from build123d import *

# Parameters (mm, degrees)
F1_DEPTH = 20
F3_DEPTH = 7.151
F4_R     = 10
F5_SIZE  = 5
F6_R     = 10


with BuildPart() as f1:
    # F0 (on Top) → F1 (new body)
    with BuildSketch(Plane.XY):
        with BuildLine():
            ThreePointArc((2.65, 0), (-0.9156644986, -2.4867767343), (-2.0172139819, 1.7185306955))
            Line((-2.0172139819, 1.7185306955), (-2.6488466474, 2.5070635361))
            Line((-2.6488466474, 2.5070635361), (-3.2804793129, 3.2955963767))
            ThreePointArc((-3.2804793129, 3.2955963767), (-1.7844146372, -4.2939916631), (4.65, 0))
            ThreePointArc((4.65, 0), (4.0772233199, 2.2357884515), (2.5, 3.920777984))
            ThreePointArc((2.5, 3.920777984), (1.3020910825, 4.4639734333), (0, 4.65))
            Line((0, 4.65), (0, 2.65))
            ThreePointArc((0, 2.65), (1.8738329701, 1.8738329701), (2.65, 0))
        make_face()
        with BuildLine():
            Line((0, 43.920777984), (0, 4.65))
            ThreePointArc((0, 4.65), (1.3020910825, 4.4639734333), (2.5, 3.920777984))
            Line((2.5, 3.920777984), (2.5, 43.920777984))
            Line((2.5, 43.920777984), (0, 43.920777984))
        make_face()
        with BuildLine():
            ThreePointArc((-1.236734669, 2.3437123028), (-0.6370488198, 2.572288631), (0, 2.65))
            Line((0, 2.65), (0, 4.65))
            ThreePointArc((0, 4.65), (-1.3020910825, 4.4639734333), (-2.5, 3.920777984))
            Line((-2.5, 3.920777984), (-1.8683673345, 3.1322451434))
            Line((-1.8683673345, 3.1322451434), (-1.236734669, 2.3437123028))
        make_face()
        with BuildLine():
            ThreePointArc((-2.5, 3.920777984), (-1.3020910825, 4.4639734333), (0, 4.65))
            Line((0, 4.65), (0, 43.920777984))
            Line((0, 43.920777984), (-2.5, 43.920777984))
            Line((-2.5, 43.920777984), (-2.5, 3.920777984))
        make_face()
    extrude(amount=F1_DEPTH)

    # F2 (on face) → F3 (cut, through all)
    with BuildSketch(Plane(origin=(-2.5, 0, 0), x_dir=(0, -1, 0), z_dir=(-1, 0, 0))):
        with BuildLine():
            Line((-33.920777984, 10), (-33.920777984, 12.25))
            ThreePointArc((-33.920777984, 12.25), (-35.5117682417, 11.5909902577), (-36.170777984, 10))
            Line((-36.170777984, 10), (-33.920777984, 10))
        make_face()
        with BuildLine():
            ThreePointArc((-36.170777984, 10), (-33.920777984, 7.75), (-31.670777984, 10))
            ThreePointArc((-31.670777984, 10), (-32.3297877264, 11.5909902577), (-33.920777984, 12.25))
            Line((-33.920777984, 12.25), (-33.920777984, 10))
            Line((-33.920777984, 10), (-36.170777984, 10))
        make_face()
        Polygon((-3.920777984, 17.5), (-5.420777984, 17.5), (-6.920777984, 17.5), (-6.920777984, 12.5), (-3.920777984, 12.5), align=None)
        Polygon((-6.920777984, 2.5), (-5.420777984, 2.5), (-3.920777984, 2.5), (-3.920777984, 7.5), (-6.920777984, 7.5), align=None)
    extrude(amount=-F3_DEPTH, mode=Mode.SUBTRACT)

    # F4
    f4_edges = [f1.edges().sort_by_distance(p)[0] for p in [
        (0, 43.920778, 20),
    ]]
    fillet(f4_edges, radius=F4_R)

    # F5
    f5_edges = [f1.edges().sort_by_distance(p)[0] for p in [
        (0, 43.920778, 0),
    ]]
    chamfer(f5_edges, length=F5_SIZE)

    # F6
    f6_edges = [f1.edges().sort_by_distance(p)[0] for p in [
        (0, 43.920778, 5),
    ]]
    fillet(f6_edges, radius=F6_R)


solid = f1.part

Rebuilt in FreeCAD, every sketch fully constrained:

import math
import FreeCAD as App
import Part
import Sketcher
Q = App.Units.Quantity


def edges_at(feature, points):
    """Names of the edges that pass closest to the given points."""
    edges = feature.Shape.Edges
    near = lambda p: min(range(len(edges)), key=lambda i: edges[i].distToShape(Part.Vertex(*p))[0])
    return sorted({f"Edge{near(p) + 1}" for p in points})


def add_polygon(sketch, points):
    """Adds a closed chain of lines whose ends are joined by coincident constraints."""
    first, n = sketch.GeometryCount, len(points)
    for a, b in zip(points, points[1:] + points[:1]):
        sketch.addGeometry(Part.LineSegment(App.Vector(*a, 0), App.Vector(*b, 0)), False)
    for i in range(n):
        sketch.addConstraint(Sketcher.Constraint("Coincident", first + i, 2, first + (i + 1) % n, 1))

doc = App.newDocument("Part")
body = doc.addObject("PartDesign::Body", "Body")

# Sketch on XY plane
sketch1 = doc.addObject("Sketcher::SketchObject", "Sketch")
body.addObject(sketch1)
sketch1.AttachmentSupport = (doc.XY_Plane, [""])
sketch1.MapMode = "FlatFace"
sketch1.addGeometry([
    Part.ArcOfCircle(Part.Circle(App.Vector(0, 0, 0), App.Vector(0, 0, 1), 2.65), math.radians(139.571235), math.radians(360)),  # 0
    Part.LineSegment(App.Vector(-2.017214, 1.718531, 0), App.Vector(-3.280479, 3.295596, 0)),  # 1
    Part.ArcOfCircle(Part.Circle(App.Vector(0, 0, 0), App.Vector(0, 0, 1), 4.65), math.radians(134.868289), math.radians(360)),  # 2
    Part.ArcOfCircle(Part.Circle(App.Vector(0, 0, 0), App.Vector(0, 0, 1), 4.65), math.radians(0), math.radians(57.477252)),  # 3
    Part.LineSegment(App.Vector(2.5, 3.920778, 0), App.Vector(2.5, 43.920778, 0)),  # 4
    Part.LineSegment(App.Vector(2.5, 43.920778, 0), App.Vector(-2.5, 43.920778, 0)),  # 5
    Part.LineSegment(App.Vector(-2.5, 43.920778, 0), App.Vector(-2.5, 3.920778, 0)),  # 6
    Part.LineSegment(App.Vector(-2.5, 3.920778, 0), App.Vector(-1.236735, 2.343712, 0)),  # 7
    Part.ArcOfCircle(Part.Circle(App.Vector(0, 0, 0), App.Vector(0, 0, 1), 2.65), math.radians(90), math.radians(117.819802)),  # 8
    Part.ArcOfCircle(Part.Circle(App.Vector(0, 0, 0), App.Vector(0, 0, 1), 2.65), math.radians(0), math.radians(90)),  # 9
], False)
sketch1.addConstraint([
    Sketcher.Constraint("Coincident", 0, 1, 1, 1),
    Sketcher.Constraint("Coincident", 1, 2, 2, 1),
    Sketcher.Constraint("Tangent", 2, 2, 3, 1),
    Sketcher.Constraint("Coincident", 3, 2, 4, 1),
    Sketcher.Constraint("Coincident", 4, 2, 5, 1),
    Sketcher.Constraint("Coincident", 5, 2, 6, 1),
    Sketcher.Constraint("Coincident", 6, 2, 7, 1),
    Sketcher.Constraint("Coincident", 7, 2, 8, 2),
    Sketcher.Constraint("Tangent", 8, 1, 9, 2),
    Sketcher.Constraint("Tangent", 9, 1, 0, 2),
    Sketcher.Constraint("Vertical", 4),
    Sketcher.Constraint("Horizontal", 5),
    Sketcher.Constraint("Vertical", 6),
    Sketcher.Constraint("Coincident", 0, 3, -1, 1),
    Sketcher.Constraint("Coincident", 2, 3, -1, 1),
    Sketcher.Constraint("Coincident", 8, 3, -1, 1),
    Sketcher.Constraint("Equal", 2, 3),
    Sketcher.Constraint("Symmetric", 3, 2, 6, 2, -2),
    Sketcher.Constraint("PointOnObject", 2, 2, -1),
    Sketcher.Constraint("PointOnObject", 8, 1, -2),
    Sketcher.Constraint("PointOnObject", 9, 1, -1),
    Sketcher.Constraint("Parallel", 1, 7),
    Sketcher.Constraint("Equal", 1, 7),
    Sketcher.Constraint("DistanceX", 5, 2, 5, 1, Q("5 mm")),
    Sketcher.Constraint("DistanceY", 4, 1, 4, 2, Q("40 mm")),
    Sketcher.Constraint("Radius", 0, Q("2.65 mm")),
    Sketcher.Constraint("Radius", 2, Q("4.65 mm")),
    Sketcher.Constraint("DistanceY", -1, 1, 0, 1, Q("1.718531 mm")),
])
pad1 = doc.addObject("PartDesign::Pad", "Pad")
body.addObject(pad1)
pad1.Profile = sketch1
pad1.Length = 20

# Sketch on YZ plane
sketch2 = doc.addObject("Sketcher::SketchObject", "Sketch001")
body.addObject(sketch2)
sketch2.AttachmentSupport = (doc.YZ_Plane, [""])
sketch2.MapMode = "FlatFace"
sketch2.AttachmentOffset = App.Placement(App.Vector(0, 0, -2.5), App.Rotation())
sketch2.addGeometry(Part.ArcOfCircle(Part.Circle(App.Vector(33.920778, 10, 0), App.Vector(0, 0, 1), 2.25), math.radians(0), math.radians(90)), False)  # 0
sketch2.addGeometry(Part.ArcOfCircle(Part.Circle(App.Vector(33.920778, 10, 0), App.Vector(0, 0, 1), 2.25), math.radians(180), math.radians(360)), False)  # 1
sketch2.addGeometry(Part.ArcOfCircle(Part.Circle(App.Vector(33.920778, 10, 0), App.Vector(0, 0, 1), 2.25), math.radians(90), math.radians(180)), False)  # 2
add_polygon(sketch2, [(3.920778, 17.5), (6.920778, 17.5), (6.920778, 12.5), (3.920778, 12.5)])  # lines 3-6
add_polygon(sketch2, [(6.920778, 2.5), (3.920778, 2.5), (3.920778, 7.5), (6.920778, 7.5)])  # lines 7-10
sketch2.addConstraint([
    Sketcher.Constraint("Tangent", 0, 1, 1, 2),
    Sketcher.Constraint("Tangent", 1, 1, 2, 2),
    Sketcher.Constraint("Tangent", 2, 1, 0, 2),
    Sketcher.Constraint("Horizontal", 3),
    Sketcher.Constraint("Vertical", 4),
    Sketcher.Constraint("Horizontal", 5),
    Sketcher.Constraint("Vertical", 6),
    Sketcher.Constraint("Horizontal", 7),
    Sketcher.Constraint("Vertical", 8),
    Sketcher.Constraint("Horizontal", 9),
    Sketcher.Constraint("Vertical", 10),
    Sketcher.Constraint("Horizontal", 2, 3, 0, 1),
    Sketcher.Constraint("Horizontal", 0, 1, 1, 1),
    Sketcher.Constraint("Vertical", 1, 3, 2, 1),
    Sketcher.Constraint("Vertical", 6, 2, 7, 2),
    Sketcher.Constraint("Vertical", 4, 2, 9, 2),
    Sketcher.Constraint("Equal", 6, 8),
    Sketcher.Constraint("DistanceX", 3, 1, 3, 2, Q("3 mm")),
    Sketcher.Constraint("DistanceY", 4, 2, 4, 1, Q("5 mm")),
    Sketcher.Constraint("Radius", 0, Q("2.25 mm")),
    Sketcher.Constraint("DistanceY", -1, 1, 0, 3, Q("10 mm")),
    Sketcher.Constraint("DistanceX", 3, 2, 2, 1, Q("27 mm")),
    Sketcher.Constraint("DistanceY", 7, 2, 5, 2, Q("10 mm")),
    Sketcher.Constraint("DistanceY", -1, 1, 3, 2, Q("17.5 mm")),
    Sketcher.Constraint("DistanceX", -1, 1, 0, 3, Q("33.920778 mm")),
])
pocket1 = doc.addObject("PartDesign::Pocket", "Pocket")
body.addObject(pocket1)
pocket1.Profile = sketch2
pocket1.Type = "ThroughAll"
pocket1.Reversed = True
doc.recompute()

fillet = doc.addObject("PartDesign::Fillet", "Fillet")
body.addObject(fillet)
fillet.Base = (pocket1, edges_at(pocket1, [(0, 43.921, 20)]))
fillet.Radius = 10
doc.recompute()

chamfer = doc.addObject("PartDesign::Chamfer", "Chamfer")
body.addObject(chamfer)
chamfer.Base = (fillet, edges_at(fillet, [(0, 43.921, 0)]))
chamfer.Size = 5
doc.recompute()

fillet2 = doc.addObject("PartDesign::Fillet", "Fillet001")
body.addObject(fillet2)
fillet2.Base = (chamfer, edges_at(chamfer, [(0, 43.921, 5)]))
fillet2.Radius = 10

doc.recompute()
